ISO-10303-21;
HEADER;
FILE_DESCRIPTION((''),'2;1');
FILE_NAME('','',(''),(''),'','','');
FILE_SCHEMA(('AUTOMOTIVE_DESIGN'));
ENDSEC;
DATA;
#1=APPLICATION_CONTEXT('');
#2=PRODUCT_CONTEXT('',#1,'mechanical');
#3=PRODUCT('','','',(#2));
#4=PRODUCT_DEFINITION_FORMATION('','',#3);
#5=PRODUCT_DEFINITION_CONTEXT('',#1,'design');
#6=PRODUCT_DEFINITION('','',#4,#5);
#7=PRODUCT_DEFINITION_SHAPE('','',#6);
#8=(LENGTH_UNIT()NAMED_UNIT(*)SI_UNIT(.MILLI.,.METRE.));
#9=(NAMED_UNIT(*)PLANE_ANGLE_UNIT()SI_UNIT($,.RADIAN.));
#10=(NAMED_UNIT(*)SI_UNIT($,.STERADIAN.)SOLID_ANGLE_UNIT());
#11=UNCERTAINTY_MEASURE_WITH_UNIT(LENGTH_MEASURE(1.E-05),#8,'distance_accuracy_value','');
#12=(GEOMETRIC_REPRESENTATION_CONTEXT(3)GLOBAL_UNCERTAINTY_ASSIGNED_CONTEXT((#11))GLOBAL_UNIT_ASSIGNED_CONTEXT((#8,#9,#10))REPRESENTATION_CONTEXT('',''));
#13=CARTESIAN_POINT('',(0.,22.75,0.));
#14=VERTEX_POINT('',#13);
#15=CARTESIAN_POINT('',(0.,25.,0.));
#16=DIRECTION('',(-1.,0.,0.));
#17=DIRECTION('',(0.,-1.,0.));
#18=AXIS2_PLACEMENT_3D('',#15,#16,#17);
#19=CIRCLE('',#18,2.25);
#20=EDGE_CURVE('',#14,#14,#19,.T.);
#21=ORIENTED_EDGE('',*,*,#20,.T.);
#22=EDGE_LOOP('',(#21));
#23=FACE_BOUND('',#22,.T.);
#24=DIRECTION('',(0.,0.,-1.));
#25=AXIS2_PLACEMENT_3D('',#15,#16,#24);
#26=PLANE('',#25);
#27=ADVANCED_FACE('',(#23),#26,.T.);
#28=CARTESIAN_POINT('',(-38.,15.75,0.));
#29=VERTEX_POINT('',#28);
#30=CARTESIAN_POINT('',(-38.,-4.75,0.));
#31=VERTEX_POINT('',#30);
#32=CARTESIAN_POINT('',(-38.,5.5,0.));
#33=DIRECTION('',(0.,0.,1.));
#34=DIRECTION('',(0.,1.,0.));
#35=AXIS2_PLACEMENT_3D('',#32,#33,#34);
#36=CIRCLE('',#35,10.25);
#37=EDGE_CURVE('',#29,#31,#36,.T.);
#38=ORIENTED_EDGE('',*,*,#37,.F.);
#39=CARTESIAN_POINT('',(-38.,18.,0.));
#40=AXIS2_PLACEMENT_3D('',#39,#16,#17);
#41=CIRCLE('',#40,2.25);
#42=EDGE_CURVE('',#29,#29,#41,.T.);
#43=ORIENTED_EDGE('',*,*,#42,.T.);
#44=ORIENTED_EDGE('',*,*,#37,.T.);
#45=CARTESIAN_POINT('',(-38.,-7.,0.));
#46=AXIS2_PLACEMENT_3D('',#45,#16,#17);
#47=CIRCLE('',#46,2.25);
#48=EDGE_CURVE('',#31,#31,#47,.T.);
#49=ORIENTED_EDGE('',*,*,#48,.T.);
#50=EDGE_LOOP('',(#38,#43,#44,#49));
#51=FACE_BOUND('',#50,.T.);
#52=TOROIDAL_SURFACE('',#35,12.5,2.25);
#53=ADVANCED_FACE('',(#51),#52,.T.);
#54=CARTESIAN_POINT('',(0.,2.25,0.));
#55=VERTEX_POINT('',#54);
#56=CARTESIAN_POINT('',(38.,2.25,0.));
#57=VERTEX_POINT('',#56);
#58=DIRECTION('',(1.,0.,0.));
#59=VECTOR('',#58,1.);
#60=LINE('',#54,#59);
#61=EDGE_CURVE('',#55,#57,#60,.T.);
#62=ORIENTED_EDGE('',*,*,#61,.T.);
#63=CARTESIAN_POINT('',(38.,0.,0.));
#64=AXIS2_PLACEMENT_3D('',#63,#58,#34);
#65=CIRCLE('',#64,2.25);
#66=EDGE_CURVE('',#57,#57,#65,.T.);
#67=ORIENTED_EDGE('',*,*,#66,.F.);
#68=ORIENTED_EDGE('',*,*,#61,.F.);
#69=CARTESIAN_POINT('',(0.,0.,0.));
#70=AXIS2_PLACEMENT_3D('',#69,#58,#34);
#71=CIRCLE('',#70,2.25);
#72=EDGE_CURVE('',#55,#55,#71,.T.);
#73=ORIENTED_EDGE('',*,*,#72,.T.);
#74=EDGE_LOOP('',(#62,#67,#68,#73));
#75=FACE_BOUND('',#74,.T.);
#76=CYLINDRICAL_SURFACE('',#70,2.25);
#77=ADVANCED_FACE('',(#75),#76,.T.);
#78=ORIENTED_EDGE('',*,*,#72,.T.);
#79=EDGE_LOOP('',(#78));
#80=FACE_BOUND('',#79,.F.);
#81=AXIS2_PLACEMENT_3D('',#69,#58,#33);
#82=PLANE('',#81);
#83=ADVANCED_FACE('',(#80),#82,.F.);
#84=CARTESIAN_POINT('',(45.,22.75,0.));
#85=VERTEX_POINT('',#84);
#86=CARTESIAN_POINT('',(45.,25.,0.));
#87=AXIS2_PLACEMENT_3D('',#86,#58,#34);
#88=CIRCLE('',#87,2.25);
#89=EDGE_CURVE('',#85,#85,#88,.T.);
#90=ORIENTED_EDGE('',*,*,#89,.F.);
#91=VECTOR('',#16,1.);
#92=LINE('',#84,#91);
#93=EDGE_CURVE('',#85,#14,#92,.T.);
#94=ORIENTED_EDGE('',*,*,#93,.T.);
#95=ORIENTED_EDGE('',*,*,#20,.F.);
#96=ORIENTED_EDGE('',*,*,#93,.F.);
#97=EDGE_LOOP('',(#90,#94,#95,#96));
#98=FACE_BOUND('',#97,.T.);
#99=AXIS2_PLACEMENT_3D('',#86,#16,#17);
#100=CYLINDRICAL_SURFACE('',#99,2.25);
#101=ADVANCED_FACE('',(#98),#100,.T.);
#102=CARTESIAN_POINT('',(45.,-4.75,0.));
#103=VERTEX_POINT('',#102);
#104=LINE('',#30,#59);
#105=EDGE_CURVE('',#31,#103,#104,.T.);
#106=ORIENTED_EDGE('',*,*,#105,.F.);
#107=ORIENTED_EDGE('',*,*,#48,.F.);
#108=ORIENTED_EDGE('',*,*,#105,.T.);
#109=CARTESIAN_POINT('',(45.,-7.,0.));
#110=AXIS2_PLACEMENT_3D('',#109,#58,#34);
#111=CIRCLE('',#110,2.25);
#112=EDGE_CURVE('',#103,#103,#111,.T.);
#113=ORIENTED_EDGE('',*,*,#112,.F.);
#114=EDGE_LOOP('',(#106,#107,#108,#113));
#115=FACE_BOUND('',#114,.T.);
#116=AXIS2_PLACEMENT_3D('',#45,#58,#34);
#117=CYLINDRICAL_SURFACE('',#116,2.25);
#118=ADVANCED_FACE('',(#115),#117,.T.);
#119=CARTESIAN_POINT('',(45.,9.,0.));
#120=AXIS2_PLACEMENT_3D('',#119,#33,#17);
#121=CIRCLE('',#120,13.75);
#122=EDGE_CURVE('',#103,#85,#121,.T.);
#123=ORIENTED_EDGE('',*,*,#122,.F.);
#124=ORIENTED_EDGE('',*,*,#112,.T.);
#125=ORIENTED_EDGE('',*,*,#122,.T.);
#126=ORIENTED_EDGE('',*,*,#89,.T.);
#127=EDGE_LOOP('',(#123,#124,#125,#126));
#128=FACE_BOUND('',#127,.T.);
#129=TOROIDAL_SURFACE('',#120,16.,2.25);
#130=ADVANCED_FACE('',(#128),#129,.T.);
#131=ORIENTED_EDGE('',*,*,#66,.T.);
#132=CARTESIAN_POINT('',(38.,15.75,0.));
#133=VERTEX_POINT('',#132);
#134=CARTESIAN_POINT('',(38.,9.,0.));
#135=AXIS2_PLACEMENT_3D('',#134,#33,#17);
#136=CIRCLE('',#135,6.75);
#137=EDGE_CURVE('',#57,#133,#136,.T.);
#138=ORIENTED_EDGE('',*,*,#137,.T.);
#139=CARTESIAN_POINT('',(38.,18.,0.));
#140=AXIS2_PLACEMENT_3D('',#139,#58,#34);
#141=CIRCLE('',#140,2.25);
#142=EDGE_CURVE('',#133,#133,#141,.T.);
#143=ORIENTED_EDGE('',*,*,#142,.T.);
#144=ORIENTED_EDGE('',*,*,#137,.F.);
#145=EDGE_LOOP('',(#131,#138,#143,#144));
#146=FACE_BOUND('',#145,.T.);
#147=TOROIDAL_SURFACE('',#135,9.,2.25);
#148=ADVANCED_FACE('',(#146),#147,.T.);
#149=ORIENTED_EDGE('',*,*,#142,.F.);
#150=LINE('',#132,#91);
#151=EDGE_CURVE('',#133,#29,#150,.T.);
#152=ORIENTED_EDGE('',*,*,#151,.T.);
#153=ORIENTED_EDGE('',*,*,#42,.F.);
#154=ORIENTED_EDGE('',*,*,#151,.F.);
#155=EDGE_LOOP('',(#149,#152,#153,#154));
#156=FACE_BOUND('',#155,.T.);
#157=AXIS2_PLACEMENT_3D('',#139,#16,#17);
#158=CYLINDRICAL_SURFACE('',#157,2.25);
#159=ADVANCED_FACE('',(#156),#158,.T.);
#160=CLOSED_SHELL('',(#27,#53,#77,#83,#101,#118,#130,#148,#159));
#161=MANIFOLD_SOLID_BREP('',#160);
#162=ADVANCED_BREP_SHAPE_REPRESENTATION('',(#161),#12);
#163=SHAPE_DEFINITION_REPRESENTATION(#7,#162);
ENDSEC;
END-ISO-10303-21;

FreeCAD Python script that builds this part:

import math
import FreeCAD as App
import Part
import Sketcher
from FreeCAD import Vector
Q = App.Units.Quantity

doc = App.newDocument("Part")
body = doc.addObject("PartDesign::Body", "Body")

sketch1 = body.newObject("Sketcher::SketchObject", "Sketch")
sketch1.AttachmentSupport = (doc.getObject("YZ_Plane"), [""])
sketch1.MapMode = "FlatFace"
sketch1.addGeometry(Part.Circle(Vector(0, 0, 0), Vector(0, 0, 1), 2.2), False)
sketch1.addConstraint(Sketcher.Constraint("Coincident", 0, 3, -1, 1))
sketch1.addConstraint(Sketcher.Constraint("Diameter", 0, Q("4.5 mm")))

sketch2 = body.newObject("Sketcher::SketchObject", "Sketch001")
sketch2.AttachmentSupport = (doc.getObject("XY_Plane"), [""])
sketch2.MapMode = "FlatFace"
sketch2.addGeometry(Part.LineSegment(Vector(0, 0, 0), Vector(38, 0, 0)), False)
sketch2.addGeometry(Part.ArcOfCircle(Part.Circle(Vector(38, 9, 0), Vector(0, 0, 1), 9), math.radians(-90), math.radians(90)), False)
sketch2.addGeometry(Part.LineSegment(Vector(38, 18, 0), Vector(-38, 18, 0)), False)
sketch2.addGeometry(Part.ArcOfCircle(Part.Circle(Vector(-38, 6, 0), Vector(0, 0, 1), 12), math.radians(90), math.radians(270)), False)
sketch2.addGeometry(Part.LineSegment(Vector(-38, -7, 0), Vector(45, -7, 0)), False)
sketch2.addGeometry(Part.ArcOfCircle(Part.Circle(Vector(45, 9, 0), Vector(0, 0, 1), 16), math.radians(-90), math.radians(90)), False)
sketch2.addGeometry(Part.LineSegment(Vector(45, 25, 0), Vector(0, 25, 0)), False)
sketch2.addConstraint(Sketcher.Constraint("Tangent", 0, 2, 1, 1))
sketch2.addConstraint(Sketcher.Constraint("Tangent", 1, 2, 2, 1))
sketch2.addConstraint(Sketcher.Constraint("Tangent", 2, 2, 3, 1))
sketch2.addConstraint(Sketcher.Constraint("Tangent", 3, 2, 4, 1))
sketch2.addConstraint(Sketcher.Constraint("Tangent", 4, 2, 5, 1))
sketch2.addConstraint(Sketcher.Constraint("Tangent", 5, 2, 6, 1))
sketch2.addConstraint(Sketcher.Constraint("Horizontal", 0))
sketch2.addConstraint(Sketcher.Constraint("Horizontal", 2))
sketch2.addConstraint(Sketcher.Constraint("Horizontal", 4))
sketch2.addConstraint(Sketcher.Constraint("Horizontal", 6))
sketch2.addConstraint(Sketcher.Constraint("Coincident", 0, 1, -1, 1))
sketch2.addConstraint(Sketcher.Constraint("PointOnObject", 6, 2, -2))
sketch2.addConstraint(Sketcher.Constraint("Horizontal", 1, 3, 5, 3))
sketch2.addConstraint(Sketcher.Constraint("Radius", 1, Q("9 mm")))
sketch2.addConstraint(Sketcher.Constraint("Radius", 5, Q("16 mm")))
sketch2.addConstraint(Sketcher.Constraint("DistanceX", 0, 1, 0, 2, Q("38 mm")))
sketch2.addConstraint(Sketcher.Constraint("DistanceX", 2, 2, 2, 1, Q("76 mm")))
sketch2.addConstraint(Sketcher.Constraint("DistanceX", 4, 1, 4, 2, Q("83 mm")))
doc.recompute()

additivepipe = body.newObject("PartDesign::AdditivePipe", "AdditivePipe")
additivepipe.Profile = sketch1
additivepipe.Spine = (sketch2, ["Edge1", "Edge2", "Edge3", "Edge4", "Edge5", "Edge6", "Edge7"])

doc.recompute()
